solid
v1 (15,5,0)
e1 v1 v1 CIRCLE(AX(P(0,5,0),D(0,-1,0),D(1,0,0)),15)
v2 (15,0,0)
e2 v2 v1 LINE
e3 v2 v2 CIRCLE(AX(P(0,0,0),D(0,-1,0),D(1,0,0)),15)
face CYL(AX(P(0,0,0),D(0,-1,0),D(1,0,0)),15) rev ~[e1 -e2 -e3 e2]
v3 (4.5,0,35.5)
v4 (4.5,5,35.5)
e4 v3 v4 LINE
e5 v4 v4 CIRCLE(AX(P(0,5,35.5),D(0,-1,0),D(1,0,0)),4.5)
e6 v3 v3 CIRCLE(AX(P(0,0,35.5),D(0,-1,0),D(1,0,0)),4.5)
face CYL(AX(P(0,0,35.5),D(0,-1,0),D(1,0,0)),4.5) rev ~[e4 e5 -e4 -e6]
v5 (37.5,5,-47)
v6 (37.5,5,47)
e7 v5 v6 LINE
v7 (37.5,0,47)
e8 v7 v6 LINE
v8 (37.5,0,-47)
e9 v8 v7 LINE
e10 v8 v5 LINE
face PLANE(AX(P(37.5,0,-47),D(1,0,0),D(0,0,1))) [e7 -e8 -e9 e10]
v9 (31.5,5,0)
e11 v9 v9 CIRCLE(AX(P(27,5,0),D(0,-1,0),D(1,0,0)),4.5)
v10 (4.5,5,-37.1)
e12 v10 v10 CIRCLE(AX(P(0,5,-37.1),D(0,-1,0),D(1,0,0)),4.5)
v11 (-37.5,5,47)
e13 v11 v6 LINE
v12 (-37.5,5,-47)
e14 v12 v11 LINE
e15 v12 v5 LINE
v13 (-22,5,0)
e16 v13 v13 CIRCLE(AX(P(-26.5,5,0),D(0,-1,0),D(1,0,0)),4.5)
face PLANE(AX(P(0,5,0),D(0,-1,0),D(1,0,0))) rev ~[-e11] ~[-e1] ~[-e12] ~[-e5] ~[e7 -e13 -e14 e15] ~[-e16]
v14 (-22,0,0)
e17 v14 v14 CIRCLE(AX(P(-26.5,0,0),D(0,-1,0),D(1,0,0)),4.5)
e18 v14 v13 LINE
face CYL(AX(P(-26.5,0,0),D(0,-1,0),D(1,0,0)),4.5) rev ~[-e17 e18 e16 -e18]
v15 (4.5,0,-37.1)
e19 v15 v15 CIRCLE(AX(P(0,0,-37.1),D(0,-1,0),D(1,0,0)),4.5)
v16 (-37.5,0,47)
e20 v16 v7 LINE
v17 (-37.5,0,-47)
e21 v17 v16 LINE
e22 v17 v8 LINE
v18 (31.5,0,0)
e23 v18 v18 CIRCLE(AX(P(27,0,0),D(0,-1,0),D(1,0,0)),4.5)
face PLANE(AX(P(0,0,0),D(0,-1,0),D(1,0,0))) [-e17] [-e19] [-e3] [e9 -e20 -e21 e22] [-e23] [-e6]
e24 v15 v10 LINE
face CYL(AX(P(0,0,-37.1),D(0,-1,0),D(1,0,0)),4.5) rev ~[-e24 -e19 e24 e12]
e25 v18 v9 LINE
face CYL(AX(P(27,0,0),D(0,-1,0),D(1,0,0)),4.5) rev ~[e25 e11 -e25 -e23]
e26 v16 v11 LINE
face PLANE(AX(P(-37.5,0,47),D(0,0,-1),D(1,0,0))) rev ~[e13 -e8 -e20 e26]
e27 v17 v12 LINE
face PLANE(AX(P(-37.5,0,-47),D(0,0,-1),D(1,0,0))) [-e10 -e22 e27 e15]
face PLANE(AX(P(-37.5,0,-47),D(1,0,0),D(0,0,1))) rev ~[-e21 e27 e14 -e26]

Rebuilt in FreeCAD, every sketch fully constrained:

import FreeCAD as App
import Part
import Sketcher

V = App.Vector


def add_polygon(sketch, points):
    """Adds a closed chain of lines whose ends are joined by coincident constraints."""
    first, n = sketch.GeometryCount, len(points)
    for a, b in zip(points, points[1:] + points[:1]):
        sketch.addGeometry(Part.LineSegment(App.Vector(*a, 0), App.Vector(*b, 0)), False)
    for i in range(n):
        sketch.addConstraint(Sketcher.Constraint("Coincident", first + i, 2, first + (i + 1) % n, 1))

doc = App.newDocument("Part")
params = doc.addObject("Spreadsheet::Sheet", "Params")
for row, (alias, value) in enumerate([
    ("sketch1_width", "75 mm"),
    ("sketch1_height", "94 mm"),
    ("pad1_length", "5 mm"),
    ("sketch2_diameter", "30 mm"),
    ("sketch2_diameter2", "9 mm"),
], start=1):
    params.set(f"A{row}", alias)
    params.set(f"B{row}", "=" + value)
    params.setAlias(f"B{row}", alias)

body = doc.addObject("PartDesign::Body", "Body")

sketch1 = body.newObject("Sketcher::SketchObject", "Sketch")
sketch1.AttachmentSupport = (doc.getObject("XZ_Plane"), [""])
sketch1.MapMode = "FlatFace"
add_polygon(sketch1, [(-38, 47), (-38, -47), (38, -47), (38, 47)])
sketch1.addConstraint([
    Sketcher.Constraint("Vertical", 0),
    Sketcher.Constraint("Horizontal", 1),
    Sketcher.Constraint("Vertical", 2),
    Sketcher.Constraint("Horizontal", 3),
    Sketcher.Constraint("Symmetric", 0, 2, 2, 2, -1, 1),
    Sketcher.Constraint("DistanceX", 1, 1, 1, 2, 75.0),
    Sketcher.Constraint("DistanceY", 0, 2, 0, 1, 94.0),
])
sketch1.setExpression("Constraints[9]", "Params.sketch1_width")
sketch1.setExpression("Constraints[10]", "Params.sketch1_height")
pad1 = body.newObject("PartDesign::Pad", "Pad")
pad1.Profile = sketch1
pad1.setExpression("Length", "Params.pad1_length")
pad1.Reversed = True

sketch2 = body.newObject("Sketcher::SketchObject", "Sketch001")
sketch2.AttachmentSupport = (doc.getObject("XZ_Plane"), [""])
sketch2.MapMode = "FlatFace"
sketch2.addGeometry([
    Part.Circle(V(0, 0, 0), V(0, 0, 1), 15),
    Part.Circle(V(0, 35.5, 0), V(0, 0, 1), 4.5),
    Part.Circle(V(-26.5, 0, 0), V(0, 0, 1), 4.5),
    Part.Circle(V(27, 0, 0), V(0, 0, 1), 4.5),
    Part.Circle(V(0, -37.1, 0), V(0, 0, 1), 4.5),
], False)
sketch2.addConstraint([
    Sketcher.Constraint("Coincident", 0, 3, -1, 1),
    Sketcher.Constraint("Equal", 1, 2),
    Sketcher.Constraint("Equal", 2, 3),
    Sketcher.Constraint("Equal", 3, 4),
    Sketcher.Constraint("PointOnObject", 1, 3, -2),
    Sketcher.Constraint("PointOnObject", 2, 3, -1),
    Sketcher.Constraint("PointOnObject", 3, 3, -1),
    Sketcher.Constraint("PointOnObject", 4, 3, -2),
    Sketcher.Constraint("Diameter", 0, 30.0),
    Sketcher.Constraint("Diameter", 1, 9.0),
    Sketcher.Constraint("DistanceX", -1, 1, 3, 3, 27.0),
    Sketcher.Constraint("DistanceY", -1, 1, 1, 3, 35.5),
    Sketcher.Constraint("DistanceX", 2, 3, -1, 1, 26.5),
    Sketcher.Constraint("DistanceY", 4, 3, -1, 1, 37.1),
])
sketch2.setExpression("Constraints[8]", "Params.sketch2_diameter")
sketch2.setExpression("Constraints[9]", "Params.sketch2_diameter2")
pocket1 = body.newObject("PartDesign::Pocket", "Pocket")
pocket1.Profile = sketch2
pocket1.Type = "ThroughAll"

doc.recompute()
